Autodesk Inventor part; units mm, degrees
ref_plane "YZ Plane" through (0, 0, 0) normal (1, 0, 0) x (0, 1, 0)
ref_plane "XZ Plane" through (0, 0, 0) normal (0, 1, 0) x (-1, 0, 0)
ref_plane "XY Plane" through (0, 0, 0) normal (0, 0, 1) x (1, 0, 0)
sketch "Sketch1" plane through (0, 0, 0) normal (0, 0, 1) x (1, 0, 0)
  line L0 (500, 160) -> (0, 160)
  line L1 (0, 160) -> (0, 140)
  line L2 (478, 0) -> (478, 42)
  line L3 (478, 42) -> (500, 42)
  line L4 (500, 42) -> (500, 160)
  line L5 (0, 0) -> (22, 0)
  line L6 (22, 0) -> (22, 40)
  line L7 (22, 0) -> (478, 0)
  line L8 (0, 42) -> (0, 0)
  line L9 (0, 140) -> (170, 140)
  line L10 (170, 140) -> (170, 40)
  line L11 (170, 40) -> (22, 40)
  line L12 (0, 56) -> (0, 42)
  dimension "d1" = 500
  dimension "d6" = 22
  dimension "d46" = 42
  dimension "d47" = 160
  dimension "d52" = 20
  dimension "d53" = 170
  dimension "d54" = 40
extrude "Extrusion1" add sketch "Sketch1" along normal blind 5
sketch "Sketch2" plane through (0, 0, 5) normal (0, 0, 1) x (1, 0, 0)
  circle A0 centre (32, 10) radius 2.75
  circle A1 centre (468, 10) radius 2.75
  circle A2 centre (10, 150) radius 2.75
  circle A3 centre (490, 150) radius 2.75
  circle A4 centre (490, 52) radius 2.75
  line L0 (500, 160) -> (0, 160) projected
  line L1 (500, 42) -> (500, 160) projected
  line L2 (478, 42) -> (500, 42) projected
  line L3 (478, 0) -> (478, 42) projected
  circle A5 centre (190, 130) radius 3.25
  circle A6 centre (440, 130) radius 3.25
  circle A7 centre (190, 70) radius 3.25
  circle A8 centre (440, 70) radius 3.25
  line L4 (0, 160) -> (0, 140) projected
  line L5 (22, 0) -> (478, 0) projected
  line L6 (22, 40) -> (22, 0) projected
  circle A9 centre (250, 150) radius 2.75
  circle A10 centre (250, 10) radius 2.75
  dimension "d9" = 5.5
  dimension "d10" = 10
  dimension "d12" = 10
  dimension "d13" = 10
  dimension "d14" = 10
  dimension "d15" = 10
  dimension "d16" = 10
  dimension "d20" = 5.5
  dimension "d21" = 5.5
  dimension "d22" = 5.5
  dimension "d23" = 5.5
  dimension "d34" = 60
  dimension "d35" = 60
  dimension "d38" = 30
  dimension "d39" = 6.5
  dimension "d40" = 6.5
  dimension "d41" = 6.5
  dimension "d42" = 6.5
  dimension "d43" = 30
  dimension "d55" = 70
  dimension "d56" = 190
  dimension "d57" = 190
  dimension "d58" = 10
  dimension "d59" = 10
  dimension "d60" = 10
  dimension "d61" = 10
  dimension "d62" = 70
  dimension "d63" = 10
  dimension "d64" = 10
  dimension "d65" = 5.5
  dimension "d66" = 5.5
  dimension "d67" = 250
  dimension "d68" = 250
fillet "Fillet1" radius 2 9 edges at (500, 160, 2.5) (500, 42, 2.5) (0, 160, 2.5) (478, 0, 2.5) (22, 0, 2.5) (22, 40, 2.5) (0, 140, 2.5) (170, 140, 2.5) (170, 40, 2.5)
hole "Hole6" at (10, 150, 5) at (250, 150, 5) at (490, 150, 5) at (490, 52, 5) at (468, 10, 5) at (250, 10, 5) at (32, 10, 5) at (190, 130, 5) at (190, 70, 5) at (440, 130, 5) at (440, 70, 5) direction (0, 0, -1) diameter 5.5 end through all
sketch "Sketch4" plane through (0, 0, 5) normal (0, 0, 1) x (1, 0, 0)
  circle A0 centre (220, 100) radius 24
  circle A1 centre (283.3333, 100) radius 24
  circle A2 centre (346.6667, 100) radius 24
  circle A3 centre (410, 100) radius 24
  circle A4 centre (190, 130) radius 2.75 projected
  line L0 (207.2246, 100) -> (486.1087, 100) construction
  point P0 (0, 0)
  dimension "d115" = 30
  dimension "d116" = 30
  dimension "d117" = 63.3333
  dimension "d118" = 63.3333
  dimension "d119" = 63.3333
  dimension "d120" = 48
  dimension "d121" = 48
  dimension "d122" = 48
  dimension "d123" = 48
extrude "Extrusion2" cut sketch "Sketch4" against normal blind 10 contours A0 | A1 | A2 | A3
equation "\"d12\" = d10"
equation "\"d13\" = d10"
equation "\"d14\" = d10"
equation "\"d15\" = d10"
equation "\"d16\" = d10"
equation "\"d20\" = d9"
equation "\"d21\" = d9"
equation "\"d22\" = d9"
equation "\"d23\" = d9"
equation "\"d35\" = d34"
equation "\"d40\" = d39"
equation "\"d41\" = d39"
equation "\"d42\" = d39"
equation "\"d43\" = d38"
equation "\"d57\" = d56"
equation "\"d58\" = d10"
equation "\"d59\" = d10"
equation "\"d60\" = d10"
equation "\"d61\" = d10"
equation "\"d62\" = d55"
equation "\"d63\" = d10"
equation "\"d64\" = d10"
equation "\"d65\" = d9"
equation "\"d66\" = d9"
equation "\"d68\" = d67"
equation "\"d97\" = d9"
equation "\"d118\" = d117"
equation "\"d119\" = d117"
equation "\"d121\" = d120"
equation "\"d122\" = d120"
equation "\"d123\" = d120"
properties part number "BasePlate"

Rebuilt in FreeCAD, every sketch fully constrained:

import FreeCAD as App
import Part
import Sketcher
from FreeCAD import Vector


def edges_at(feature, points):
    """Names of the edges that pass closest to the given points."""
    edges = feature.Shape.Edges
    near = lambda p: min(range(len(edges)), key=lambda i: edges[i].distToShape(Part.Vertex(*p))[0])
    return sorted({f"Edge{near(p) + 1}" for p in points})


def add_polygon(sketch, points):
    """Adds a closed chain of lines whose ends are joined by coincident constraints."""
    first, n = sketch.GeometryCount, len(points)
    for a, b in zip(points, points[1:] + points[:1]):
        sketch.addGeometry(Part.LineSegment(App.Vector(*a, 0), App.Vector(*b, 0)), False)
    for i in range(n):
        sketch.addConstraint(Sketcher.Constraint("Coincident", first + i, 2, first + (i + 1) % n, 1))

doc = App.newDocument("Part")
params = doc.addObject("Spreadsheet::Sheet", "Params")
for row, (alias, value) in enumerate([
    ("sketch1_width", "500 mm"),
    ("sketch1_width2", "170 mm"),
    ("sketch1_width3", "22 mm"),
    ("sketch1_height", "20 mm"),
    ("sketch1_height2", "40 mm"),
    ("pad1_length", "5 mm"),
    ("fillet_radius", "2 mm"),
    ("sketch2_diameter", "5.5 mm"),
    ("hole_diameter", "5.5 mm"),
    ("sketch3_diameter", "48 mm"),
    ("pocket1_length", "10 mm"),
], start=1):
    params.set(f"A{row}", alias)
    params.set(f"B{row}", "=" + value)
    params.setAlias(f"B{row}", alias)

body = doc.addObject("PartDesign::Body", "Body")

# Sketch on XY plane
sketch1 = doc.addObject("Sketcher::SketchObject", "Sketch")
body.addObject(sketch1)
sketch1.AttachmentSupport = (doc.XY_Plane, [""])
sketch1.MapMode = "FlatFace"
add_polygon(sketch1, [(500, 42), (500, 160), (0, 160), (0, 140), (170, 140), (170, 40), (22, 40), (22, 0), (478, 0), (478, 42)])  # lines 0-9
sketch1.addConstraint(Sketcher.Constraint("Vertical", 0))
sketch1.addConstraint(Sketcher.Constraint("Horizontal", 1))
sketch1.addConstraint(Sketcher.Constraint("Vertical", 2))
sketch1.addConstraint(Sketcher.Constraint("Horizontal", 3))
sketch1.addConstraint(Sketcher.Constraint("Vertical", 4))
sketch1.addConstraint(Sketcher.Constraint("Horizontal", 5))
sketch1.addConstraint(Sketcher.Constraint("Vertical", 6))
sketch1.addConstraint(Sketcher.Constraint("Horizontal", 7))
sketch1.addConstraint(Sketcher.Constraint("Vertical", 8))
sketch1.addConstraint(Sketcher.Constraint("Horizontal", 9))
sketch1.addConstraint(Sketcher.Constraint("PointOnObject", 1, 2, -2))
sketch1.addConstraint(Sketcher.Constraint("PointOnObject", 6, 2, -1))
sketch1.addConstraint(Sketcher.Constraint("DistanceX", 1, 2, 1, 1, 500.0))
sketch1.addConstraint(Sketcher.Constraint("DistanceX", 3, 1, 3, 2, 170.0))
sketch1.addConstraint(Sketcher.Constraint("DistanceX", 9, 1, 9, 2, 22.0))
sketch1.addConstraint(Sketcher.Constraint("DistanceY", 2, 2, 2, 1, 20.0))
sketch1.addConstraint(Sketcher.Constraint("DistanceY", 6, 2, 6, 1, 40.0))
sketch1.addConstraint(Sketcher.Constraint("DistanceY", 8, 1, 8, 2, 42.0))
sketch1.addConstraint(Sketcher.Constraint("DistanceY", -1, 1, 0, 2, 160.0))
sketch1.addConstraint(Sketcher.Constraint("DistanceX", -1, 1, 5, 2, 22.0))
sketch1.setExpression("Constraints[22]", "Params.sketch1_width")
sketch1.setExpression("Constraints[23]", "Params.sketch1_width2")
sketch1.setExpression("Constraints[24]", "Params.sketch1_width3")
sketch1.setExpression("Constraints[25]", "Params.sketch1_height")
sketch1.setExpression("Constraints[26]", "Params.sketch1_height2")
pad1 = doc.addObject("PartDesign::Pad", "Pad")
body.addObject(pad1)
pad1.Profile = sketch1
pad1.setExpression("Length", "Params.pad1_length")
doc.recompute()

fillet = doc.addObject("PartDesign::Fillet", "Fillet")
body.addObject(fillet)
fillet.Base = (pad1, edges_at(pad1, [
    (500, 160, 2.5),
    (500, 42, 2.5),
    (0, 160, 2.5),
    (478, 0, 2.5),
    (22, 0, 2.5),
    (22, 40, 2.5),
    (0, 140, 2.5),
    (170, 140, 2.5),
    (170, 40, 2.5),
]))
fillet.setExpression("Radius", "Params.fillet_radius")

# Sketch on XY plane
sketch2 = doc.addObject("Sketcher::SketchObject", "Sketch001")
body.addObject(sketch2)
sketch2.AttachmentSupport = (doc.XY_Plane, [""])
sketch2.MapMode = "FlatFace"
sketch2.AttachmentOffset = App.Placement(Vector(0, 0, 5), App.Rotation())
sketch2.addGeometry(Part.Circle(Vector(10, 150, 0), Vector(0, 0, 1), 2.8), False)
sketch2.addGeometry(Part.Circle(Vector(250, 150, 0), Vector(0, 0, 1), 2.8), False)
sketch2.addGeometry(Part.Circle(Vector(490, 150, 0), Vector(0, 0, 1), 2.8), False)
sketch2.addGeometry(Part.Circle(Vector(490, 52, 0), Vector(0, 0, 1), 2.8), False)
sketch2.addGeometry(Part.Circle(Vector(468, 10, 0), Vector(0, 0, 1), 2.8), False)
sketch2.addGeometry(Part.Circle(Vector(250, 10, 0), Vector(0, 0, 1), 2.8), False)
sketch2.addGeometry(Part.Circle(Vector(32, 10, 0), Vector(0, 0, 1), 2.8), False)
sketch2.addGeometry(Part.Circle(Vector(190, 130, 0), Vector(0, 0, 1), 2.8), False)
sketch2.addGeometry(Part.Circle(Vector(190, 70, 0), Vector(0, 0, 1), 2.8), False)
sketch2.addGeometry(Part.Circle(Vector(440, 130, 0), Vector(0, 0, 1), 2.8), False)
sketch2.addGeometry(Part.Circle(Vector(440, 70, 0), Vector(0, 0, 1), 2.8), False)
sketch2.addConstraint(Sketcher.Constraint("Equal", 0, 1))
sketch2.addConstraint(Sketcher.Constraint("Equal", 1, 2))
sketch2.addConstraint(Sketcher.Constraint("Equal", 2, 3))
sketch2.addConstraint(Sketcher.Constraint("Equal", 3, 4))
sketch2.addConstraint(Sketcher.Constraint("Equal", 4, 5))
sketch2.addConstraint(Sketcher.Constraint("Equal", 5, 6))
sketch2.addConstraint(Sketcher.Constraint("Equal", 6, 7))
sketch2.addConstraint(Sketcher.Constraint("Equal", 7, 8))
sketch2.addConstraint(Sketcher.Constraint("Equal", 8, 9))
sketch2.addConstraint(Sketcher.Constraint("Equal", 9, 10))
sketch2.addConstraint(Sketcher.Constraint("Horizontal", 0, 3, 1, 3))
sketch2.addConstraint(Sketcher.Constraint("Horizontal", 1, 3, 2, 3))
sketch2.addConstraint(Sketcher.Constraint("Horizontal", 4, 3, 5, 3))
sketch2.addConstraint(Sketcher.Constraint("Horizontal", 5, 3, 6, 3))
sketch2.addConstraint(Sketcher.Constraint("Horizontal", 7, 3, 9, 3))
sketch2.addConstraint(Sketcher.Constraint("Horizontal", 8, 3, 10, 3))
sketch2.addConstraint(Sketcher.Constraint("Vertical", 2, 3, 3, 3))
sketch2.addConstraint(Sketcher.Constraint("Vertical", 1, 3, 5, 3))
sketch2.addConstraint(Sketcher.Constraint("Vertical", 7, 3, 8, 3))
sketch2.addConstraint(Sketcher.Constraint("Vertical", 9, 3, 10, 3))
sketch2.addConstraint(Sketcher.Constraint("Diameter", 0, 5.5))
sketch2.addConstraint(Sketcher.Constraint("DistanceX", -1, 1, 0, 3, 10.0))
sketch2.addConstraint(Sketcher.Constraint("DistanceY", -1, 1, 0, 3, 150.0))
sketch2.addConstraint(Sketcher.Constraint("DistanceX", -1, 1, 1, 3, 250.0))
sketch2.addConstraint(Sketcher.Constraint("DistanceX", -1, 1, 2, 3, 490.0))
sketch2.addConstraint(Sketcher.Constraint("DistanceY", -1, 1, 3, 3, 52.0))
sketch2.addConstraint(Sketcher.Constraint("DistanceX", -1, 1, 4, 3, 468.0))
sketch2.addConstraint(Sketcher.Constraint("DistanceY", -1, 1, 4, 3, 10.0))
sketch2.addConstraint(Sketcher.Constraint("DistanceX", -1, 1, 6, 3, 32.0))
sketch2.addConstraint(Sketcher.Constraint("DistanceX", -1, 1, 7, 3, 190.0))
sketch2.addConstraint(Sketcher.Constraint("DistanceY", -1, 1, 7, 3, 130.0))
sketch2.addConstraint(Sketcher.Constraint("DistanceY", -1, 1, 8, 3, 70.0))
sketch2.addConstraint(Sketcher.Constraint("DistanceX", -1, 1, 9, 3, 440.0))
sketch2.setExpression("Constraints[20]", "Params.sketch2_diameter")
doc.recompute()
hole = doc.addObject("PartDesign::Hole", "Hole")
body.addObject(hole)
hole.Profile = sketch2
hole.ThreadType = "None"
hole.setExpression("Diameter", "Params.hole_diameter")
hole.DepthType = "ThroughAll"

# Sketch on XY plane
sketch3 = doc.addObject("Sketcher::SketchObject", "Sketch002")
body.addObject(sketch3)
sketch3.AttachmentSupport = (doc.XY_Plane, [""])
sketch3.MapMode = "FlatFace"
sketch3.AttachmentOffset = App.Placement(Vector(0, 0, 5), App.Rotation())
sketch3.addGeometry(Part.Circle(Vector(220, 100, 0), Vector(0, 0, 1), 24), False)
sketch3.addGeometry(Part.Circle(Vector(283, 100, 0), Vector(0, 0, 1), 24), False)
sketch3.addGeometry(Part.Circle(Vector(347, 100, 0), Vector(0, 0, 1), 24), False)
sketch3.addGeometry(Part.Circle(Vector(410, 100, 0), Vector(0, 0, 1), 24), False)
sketch3.addConstraint(Sketcher.Constraint("Equal", 0, 1))
sketch3.addConstraint(Sketcher.Constraint("Equal", 1, 2))
sketch3.addConstraint(Sketcher.Constraint("Equal", 2, 3))
sketch3.addConstraint(Sketcher.Constraint("Horizontal", 0, 3, 1, 3))
sketch3.addConstraint(Sketcher.Constraint("Horizontal", 1, 3, 2, 3))
sketch3.addConstraint(Sketcher.Constraint("Horizontal", 2, 3, 3, 3))
sketch3.addConstraint(Sketcher.Constraint("Diameter", 0, 48.0))
sketch3.addConstraint(Sketcher.Constraint("DistanceX", -1, 1, 0, 3, 220.0))
sketch3.addConstraint(Sketcher.Constraint("DistanceY", -1, 1, 0, 3, 100.0))
sketch3.addConstraint(Sketcher.Constraint("DistanceX", -1, 1, 3, 3, 410.0))
sketch3.addConstraint(Sketcher.Constraint("DistanceX", 0, 3, 1, 3, 63.3333))
sketch3.addConstraint(Sketcher.Constraint("DistanceX", 1, 3, 2, 3, 63.3334))
sketch3.setExpression("Constraints[6]", "Params.sketch3_diameter")
pocket1 = doc.addObject("PartDesign::Pocket", "Pocket")
body.addObject(pocket1)
pocket1.Profile = sketch3
pocket1.setExpression("Length", "Params.pocket1_length")

doc.recompute()
